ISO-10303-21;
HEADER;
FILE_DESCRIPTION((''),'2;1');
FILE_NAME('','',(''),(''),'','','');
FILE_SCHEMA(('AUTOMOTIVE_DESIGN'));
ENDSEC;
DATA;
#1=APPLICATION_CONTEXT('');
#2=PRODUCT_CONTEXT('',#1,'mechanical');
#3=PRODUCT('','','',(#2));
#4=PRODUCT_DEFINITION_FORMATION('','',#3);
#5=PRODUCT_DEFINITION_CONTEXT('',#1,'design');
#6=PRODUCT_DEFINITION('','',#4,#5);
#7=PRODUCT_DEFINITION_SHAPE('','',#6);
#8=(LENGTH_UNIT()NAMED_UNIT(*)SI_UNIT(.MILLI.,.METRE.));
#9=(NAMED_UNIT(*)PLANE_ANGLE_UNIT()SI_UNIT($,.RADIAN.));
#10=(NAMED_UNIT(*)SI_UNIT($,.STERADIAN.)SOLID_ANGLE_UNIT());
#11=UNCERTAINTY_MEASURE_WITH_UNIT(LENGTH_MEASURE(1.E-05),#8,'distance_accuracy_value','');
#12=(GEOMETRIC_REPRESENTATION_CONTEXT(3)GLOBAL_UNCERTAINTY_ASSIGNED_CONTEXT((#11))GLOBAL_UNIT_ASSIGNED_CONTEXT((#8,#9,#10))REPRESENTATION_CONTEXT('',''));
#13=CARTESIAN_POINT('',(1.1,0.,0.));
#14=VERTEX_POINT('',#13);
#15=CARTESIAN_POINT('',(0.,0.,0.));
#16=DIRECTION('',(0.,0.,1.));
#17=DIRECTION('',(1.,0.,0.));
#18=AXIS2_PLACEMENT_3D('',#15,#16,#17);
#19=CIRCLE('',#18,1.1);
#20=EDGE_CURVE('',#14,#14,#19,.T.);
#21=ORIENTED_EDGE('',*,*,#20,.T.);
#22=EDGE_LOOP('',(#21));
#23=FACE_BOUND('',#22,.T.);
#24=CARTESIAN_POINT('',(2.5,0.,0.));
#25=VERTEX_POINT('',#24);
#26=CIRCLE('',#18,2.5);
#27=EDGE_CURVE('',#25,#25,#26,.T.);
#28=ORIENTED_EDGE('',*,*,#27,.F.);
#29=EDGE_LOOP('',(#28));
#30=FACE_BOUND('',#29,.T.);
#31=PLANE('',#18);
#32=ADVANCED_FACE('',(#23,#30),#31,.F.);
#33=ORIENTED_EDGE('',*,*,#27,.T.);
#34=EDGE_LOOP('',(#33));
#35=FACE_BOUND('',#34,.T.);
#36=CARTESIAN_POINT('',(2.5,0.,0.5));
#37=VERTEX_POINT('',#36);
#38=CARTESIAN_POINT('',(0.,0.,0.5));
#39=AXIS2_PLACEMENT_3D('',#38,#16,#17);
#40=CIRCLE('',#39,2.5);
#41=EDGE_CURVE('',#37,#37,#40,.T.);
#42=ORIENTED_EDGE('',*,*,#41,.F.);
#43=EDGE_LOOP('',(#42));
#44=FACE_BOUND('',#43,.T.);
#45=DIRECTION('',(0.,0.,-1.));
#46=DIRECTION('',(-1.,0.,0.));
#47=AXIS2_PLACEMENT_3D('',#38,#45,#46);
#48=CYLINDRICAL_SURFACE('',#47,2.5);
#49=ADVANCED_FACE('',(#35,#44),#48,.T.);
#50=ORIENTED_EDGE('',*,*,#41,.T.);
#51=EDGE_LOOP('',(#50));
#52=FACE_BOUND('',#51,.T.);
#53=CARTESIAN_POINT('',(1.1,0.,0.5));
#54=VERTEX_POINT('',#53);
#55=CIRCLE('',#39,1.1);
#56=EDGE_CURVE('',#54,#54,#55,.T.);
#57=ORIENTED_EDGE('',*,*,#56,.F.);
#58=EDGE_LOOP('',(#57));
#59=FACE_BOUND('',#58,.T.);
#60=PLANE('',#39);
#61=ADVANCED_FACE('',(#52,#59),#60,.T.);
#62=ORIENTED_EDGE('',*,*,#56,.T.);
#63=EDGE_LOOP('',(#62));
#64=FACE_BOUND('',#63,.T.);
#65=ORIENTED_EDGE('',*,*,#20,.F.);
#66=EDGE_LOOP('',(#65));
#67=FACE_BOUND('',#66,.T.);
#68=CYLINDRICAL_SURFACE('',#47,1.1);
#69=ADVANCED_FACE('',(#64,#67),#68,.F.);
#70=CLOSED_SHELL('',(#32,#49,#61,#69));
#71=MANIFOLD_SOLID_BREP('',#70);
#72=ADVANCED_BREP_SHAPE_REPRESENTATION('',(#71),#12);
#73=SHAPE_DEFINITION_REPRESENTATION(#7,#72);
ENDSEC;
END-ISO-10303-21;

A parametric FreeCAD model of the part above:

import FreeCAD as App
import Part
import Sketcher

V = App.Vector
Q = App.Units.Quantity

doc = App.newDocument("Part")
body = doc.addObject("PartDesign::Body", "Body")

# Sketch on XY plane
sketch1 = body.newObject("Sketcher::SketchObject", "Sketch")
sketch1.AttachmentSupport = (doc.getObject("XY_Plane"), [""])
sketch1.MapMode = "FlatFace"
sketch1.addGeometry(Part.Circle(V(0, 0, 0), V(0, 0, 1), 2.5), False)
sketch1.addGeometry(Part.Circle(V(0, 0, 0), V(0, 0, 1), 1.1), False)
sketch1.addConstraint(Sketcher.Constraint("Coincident", 0, 3, -1, 1))
sketch1.addConstraint(Sketcher.Constraint("Coincident", 1, 3, -1, 1))
sketch1.addConstraint(Sketcher.Constraint("Diameter", 0, Q("5 mm")))
sketch1.addConstraint(Sketcher.Constraint("Diameter", 1, Q("2.2 mm")))
pad1 = body.newObject("PartDesign::Pad", "Pad")
pad1.Profile = sketch1
pad1.Length = 0.5

doc.recompute()
